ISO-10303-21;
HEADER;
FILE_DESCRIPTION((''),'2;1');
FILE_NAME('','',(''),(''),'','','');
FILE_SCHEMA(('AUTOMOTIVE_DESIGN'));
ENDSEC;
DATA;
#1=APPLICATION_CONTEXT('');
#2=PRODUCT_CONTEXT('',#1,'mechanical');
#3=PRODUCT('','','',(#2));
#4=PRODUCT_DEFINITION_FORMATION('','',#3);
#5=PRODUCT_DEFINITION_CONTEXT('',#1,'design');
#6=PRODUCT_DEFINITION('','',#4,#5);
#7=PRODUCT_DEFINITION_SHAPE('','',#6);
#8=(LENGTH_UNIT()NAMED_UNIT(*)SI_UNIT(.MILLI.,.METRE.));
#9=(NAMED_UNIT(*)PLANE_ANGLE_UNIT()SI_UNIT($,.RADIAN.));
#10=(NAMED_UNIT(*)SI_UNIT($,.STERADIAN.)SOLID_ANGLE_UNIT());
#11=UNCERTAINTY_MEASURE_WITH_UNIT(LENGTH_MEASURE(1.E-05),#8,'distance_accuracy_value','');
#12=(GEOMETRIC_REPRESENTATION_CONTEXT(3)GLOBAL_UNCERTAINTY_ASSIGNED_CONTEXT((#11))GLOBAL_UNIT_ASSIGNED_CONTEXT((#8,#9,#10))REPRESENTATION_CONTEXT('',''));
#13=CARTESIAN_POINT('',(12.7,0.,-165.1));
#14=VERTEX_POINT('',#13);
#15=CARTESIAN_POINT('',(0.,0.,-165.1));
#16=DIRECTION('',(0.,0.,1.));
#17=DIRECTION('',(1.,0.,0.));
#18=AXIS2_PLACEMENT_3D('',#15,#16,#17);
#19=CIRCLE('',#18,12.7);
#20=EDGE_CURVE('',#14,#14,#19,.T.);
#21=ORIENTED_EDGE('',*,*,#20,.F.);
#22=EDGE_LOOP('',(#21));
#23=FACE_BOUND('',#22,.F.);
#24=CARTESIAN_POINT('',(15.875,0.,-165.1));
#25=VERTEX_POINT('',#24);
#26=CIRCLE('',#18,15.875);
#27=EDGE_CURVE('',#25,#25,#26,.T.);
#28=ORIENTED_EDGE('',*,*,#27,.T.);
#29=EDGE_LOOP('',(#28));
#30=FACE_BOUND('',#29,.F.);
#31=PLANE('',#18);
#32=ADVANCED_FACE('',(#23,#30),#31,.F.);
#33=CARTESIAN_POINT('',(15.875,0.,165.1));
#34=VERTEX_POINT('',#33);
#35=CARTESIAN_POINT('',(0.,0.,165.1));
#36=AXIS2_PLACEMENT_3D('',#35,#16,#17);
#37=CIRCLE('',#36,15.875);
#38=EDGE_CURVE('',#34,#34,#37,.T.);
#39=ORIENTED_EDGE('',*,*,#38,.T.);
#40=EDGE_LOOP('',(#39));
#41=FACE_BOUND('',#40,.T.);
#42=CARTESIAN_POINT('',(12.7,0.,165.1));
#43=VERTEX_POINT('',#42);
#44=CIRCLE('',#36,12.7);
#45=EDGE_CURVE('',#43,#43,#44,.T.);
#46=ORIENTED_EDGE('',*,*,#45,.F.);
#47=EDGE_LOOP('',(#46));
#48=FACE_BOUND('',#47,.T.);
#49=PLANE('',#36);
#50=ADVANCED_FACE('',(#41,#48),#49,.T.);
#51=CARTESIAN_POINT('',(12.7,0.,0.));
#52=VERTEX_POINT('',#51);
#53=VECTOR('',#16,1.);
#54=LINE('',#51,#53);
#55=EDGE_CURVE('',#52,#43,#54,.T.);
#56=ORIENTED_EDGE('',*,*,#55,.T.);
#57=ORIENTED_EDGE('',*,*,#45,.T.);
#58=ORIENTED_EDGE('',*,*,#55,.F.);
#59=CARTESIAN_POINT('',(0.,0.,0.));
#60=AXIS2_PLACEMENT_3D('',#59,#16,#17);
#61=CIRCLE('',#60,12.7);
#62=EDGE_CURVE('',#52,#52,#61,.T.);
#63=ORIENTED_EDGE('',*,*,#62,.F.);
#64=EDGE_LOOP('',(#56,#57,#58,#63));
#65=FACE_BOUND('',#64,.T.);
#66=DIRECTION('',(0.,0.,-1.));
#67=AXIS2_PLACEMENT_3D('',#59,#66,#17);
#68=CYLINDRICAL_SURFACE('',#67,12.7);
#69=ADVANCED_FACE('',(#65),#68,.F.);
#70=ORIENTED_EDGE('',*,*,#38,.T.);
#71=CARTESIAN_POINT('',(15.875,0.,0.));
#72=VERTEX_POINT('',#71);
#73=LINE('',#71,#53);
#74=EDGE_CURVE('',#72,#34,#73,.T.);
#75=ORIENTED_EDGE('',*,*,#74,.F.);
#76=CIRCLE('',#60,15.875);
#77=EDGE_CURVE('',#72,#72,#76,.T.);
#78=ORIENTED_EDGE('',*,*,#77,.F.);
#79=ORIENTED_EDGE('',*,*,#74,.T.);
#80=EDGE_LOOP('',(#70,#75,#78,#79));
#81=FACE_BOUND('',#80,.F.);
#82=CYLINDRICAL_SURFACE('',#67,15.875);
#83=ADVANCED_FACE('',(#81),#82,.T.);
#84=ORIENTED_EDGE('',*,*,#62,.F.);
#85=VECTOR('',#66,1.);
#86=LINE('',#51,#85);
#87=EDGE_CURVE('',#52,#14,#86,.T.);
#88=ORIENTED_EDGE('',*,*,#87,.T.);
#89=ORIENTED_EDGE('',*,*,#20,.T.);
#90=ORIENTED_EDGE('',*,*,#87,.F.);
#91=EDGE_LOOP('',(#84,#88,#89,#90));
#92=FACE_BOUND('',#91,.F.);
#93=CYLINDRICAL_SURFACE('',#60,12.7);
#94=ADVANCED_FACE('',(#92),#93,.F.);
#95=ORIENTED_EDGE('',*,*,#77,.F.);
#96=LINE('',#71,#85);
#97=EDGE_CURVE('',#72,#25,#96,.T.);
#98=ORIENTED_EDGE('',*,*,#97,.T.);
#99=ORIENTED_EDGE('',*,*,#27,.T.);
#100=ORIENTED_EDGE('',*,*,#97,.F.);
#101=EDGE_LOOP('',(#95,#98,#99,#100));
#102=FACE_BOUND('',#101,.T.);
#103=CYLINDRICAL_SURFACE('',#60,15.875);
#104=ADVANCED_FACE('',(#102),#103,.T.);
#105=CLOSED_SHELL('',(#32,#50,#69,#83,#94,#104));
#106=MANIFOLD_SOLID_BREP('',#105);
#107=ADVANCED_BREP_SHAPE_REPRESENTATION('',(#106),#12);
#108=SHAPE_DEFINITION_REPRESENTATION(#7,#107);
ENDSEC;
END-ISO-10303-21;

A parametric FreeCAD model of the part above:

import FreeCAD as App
import Part
import Sketcher
Q = App.Units.Quantity

doc = App.newDocument("Part")
body = doc.addObject("PartDesign::Body", "Body")

# Sketch on XY plane
sketch1 = body.newObject("Sketcher::SketchObject", "Sketch")
sketch1.AttachmentSupport = (doc.getObject("XY_Plane"), [""])
sketch1.MapMode = "FlatFace"
sketch1.addGeometry(Part.Circle(App.Vector(0, 0, 0), App.Vector(0, 0, 1), 16), False)
sketch1.addGeometry(Part.Circle(App.Vector(0, 0, 0), App.Vector(0, 0, 1), 13), False)
sketch1.addConstraint(Sketcher.Constraint("Coincident", 0, 3, -1, 1))
sketch1.addConstraint(Sketcher.Constraint("Coincident", 1, 3, -1, 1))
sketch1.addConstraint(Sketcher.Constraint("Diameter", 0, Q("1.25 in")))
sketch1.addConstraint(Sketcher.Constraint("Diameter", 1, Q("1 in")))
pad1 = body.newObject("PartDesign::Pad", "Pad")
pad1.Profile = sketch1
pad1.Length = Q("13 in")
pad1.Midplane = True

doc.recompute()
